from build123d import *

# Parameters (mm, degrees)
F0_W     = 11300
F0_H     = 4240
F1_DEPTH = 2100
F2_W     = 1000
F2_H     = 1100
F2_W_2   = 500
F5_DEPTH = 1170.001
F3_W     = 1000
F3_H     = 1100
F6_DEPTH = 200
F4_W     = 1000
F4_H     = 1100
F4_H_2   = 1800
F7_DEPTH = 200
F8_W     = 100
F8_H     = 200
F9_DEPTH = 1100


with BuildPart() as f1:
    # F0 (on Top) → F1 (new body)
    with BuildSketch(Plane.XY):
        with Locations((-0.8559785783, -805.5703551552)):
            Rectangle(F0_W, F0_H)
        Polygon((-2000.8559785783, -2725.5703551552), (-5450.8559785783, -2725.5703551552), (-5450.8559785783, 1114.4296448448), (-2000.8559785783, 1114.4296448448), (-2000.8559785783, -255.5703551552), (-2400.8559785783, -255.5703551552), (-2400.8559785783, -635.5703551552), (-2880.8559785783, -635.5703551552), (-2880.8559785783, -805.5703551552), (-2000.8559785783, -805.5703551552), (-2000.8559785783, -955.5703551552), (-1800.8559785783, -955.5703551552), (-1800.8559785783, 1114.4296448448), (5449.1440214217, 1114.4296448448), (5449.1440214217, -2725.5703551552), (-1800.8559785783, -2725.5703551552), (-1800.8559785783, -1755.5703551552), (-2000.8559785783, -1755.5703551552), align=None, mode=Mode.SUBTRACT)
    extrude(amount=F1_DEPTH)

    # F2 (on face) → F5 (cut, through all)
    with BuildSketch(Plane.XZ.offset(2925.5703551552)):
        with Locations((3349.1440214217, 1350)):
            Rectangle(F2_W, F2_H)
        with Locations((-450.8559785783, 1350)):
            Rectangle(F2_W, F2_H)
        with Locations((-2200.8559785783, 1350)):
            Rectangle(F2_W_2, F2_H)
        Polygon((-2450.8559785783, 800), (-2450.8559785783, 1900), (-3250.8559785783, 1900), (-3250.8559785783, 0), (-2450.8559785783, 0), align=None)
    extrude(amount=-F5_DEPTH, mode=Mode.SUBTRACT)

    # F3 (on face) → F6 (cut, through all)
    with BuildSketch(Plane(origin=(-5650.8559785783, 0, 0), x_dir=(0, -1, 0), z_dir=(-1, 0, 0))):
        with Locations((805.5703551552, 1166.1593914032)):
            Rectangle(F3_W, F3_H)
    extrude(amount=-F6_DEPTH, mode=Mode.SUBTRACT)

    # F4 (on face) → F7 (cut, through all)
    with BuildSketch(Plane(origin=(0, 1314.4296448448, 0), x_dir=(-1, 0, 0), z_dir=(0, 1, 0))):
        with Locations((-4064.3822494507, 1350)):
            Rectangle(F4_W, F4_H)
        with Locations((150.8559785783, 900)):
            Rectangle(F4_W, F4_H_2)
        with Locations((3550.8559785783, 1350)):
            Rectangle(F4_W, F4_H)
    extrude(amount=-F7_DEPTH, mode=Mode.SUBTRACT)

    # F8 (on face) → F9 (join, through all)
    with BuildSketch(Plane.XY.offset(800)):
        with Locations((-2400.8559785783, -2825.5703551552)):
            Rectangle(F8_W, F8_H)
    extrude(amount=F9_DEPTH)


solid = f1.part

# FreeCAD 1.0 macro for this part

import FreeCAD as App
import Part
import Sketcher

V = App.Vector

doc = App.newDocument("Part")
body = doc.addObject("PartDesign::Body", "Body")

# Sketch on XY plane
sketch1 = body.newObject("Sketcher::SketchObject", "Sketch")
sketch1.AttachmentSupport = (doc.getObject("XY_Plane"), [""])
sketch1.MapMode = "FlatFace"
sketch1.addGeometry([
    Part.LineSegment(V(-5650.855979, 1314.429645, 0), V(-5650.855979, -2925.570355, 0)),  # 0
    Part.LineSegment(V(-5650.855979, -2925.570355, 0), V(5649.144021, -2925.570355, 0)),  # 1
    Part.LineSegment(V(5649.144021, -2925.570355, 0), V(5649.144021, 1314.429645, 0)),  # 2
    Part.LineSegment(V(5649.144021, 1314.429645, 0), V(-5650.855979, 1314.429645, 0)),  # 3
    Part.LineSegment(V(-2000.855979, -1755.570355, 0), V(-2000.855979, -2725.570355, 0)),  # 4
    Part.LineSegment(V(-2000.855979, -2725.570355, 0), V(-5450.855979, -2725.570355, 0)),  # 5
    Part.LineSegment(V(-5450.855979, -2725.570355, 0), V(-5450.855979, 1114.429645, 0)),  # 6
    Part.LineSegment(V(-5450.855979, 1114.429645, 0), V(-2000.855979, 1114.429645, 0)),  # 7
    Part.LineSegment(V(-2000.855979, 1114.429645, 0), V(-2000.855979, -255.570355, 0)),  # 8
    Part.LineSegment(V(-2000.855979, -255.570355, 0), V(-2400.855979, -255.570355, 0)),  # 9
    Part.LineSegment(V(-2400.855979, -255.570355, 0), V(-2400.855979, -635.570355, 0)),  # 10
    Part.LineSegment(V(-2400.855979, -635.570355, 0), V(-2880.855979, -635.570355, 0)),  # 11
    Part.LineSegment(V(-2880.855979, -635.570355, 0), V(-2880.855979, -805.570355, 0)),  # 12
    Part.LineSegment(V(-2880.855979, -805.570355, 0), V(-2000.855979, -805.570355, 0)),  # 13
    Part.LineSegment(V(-2000.855979, -805.570355, 0), V(-2000.855979, -955.570355, 0)),  # 14
    Part.LineSegment(V(-2000.855979, -955.570355, 0), V(-1800.855979, -955.570355, 0)),  # 15
    Part.LineSegment(V(-1800.855979, -955.570355, 0), V(-1800.855979, 1114.429645, 0)),  # 16
    Part.LineSegment(V(-1800.855979, 1114.429645, 0), V(5449.144021, 1114.429645, 0)),  # 17
    Part.LineSegment(V(5449.144021, 1114.429645, 0), V(5449.144021, -2725.570355, 0)),  # 18
    Part.LineSegment(V(5449.144021, -2725.570355, 0), V(-1800.855979, -2725.570355, 0)),  # 19
    Part.LineSegment(V(-1800.855979, -2725.570355, 0), V(-1800.855979, -1755.570355, 0)),  # 20
    Part.LineSegment(V(-1800.855979, -1755.570355, 0), V(-2000.855979, -1755.570355, 0)),  # 21
], False)
sketch1.addConstraint([
    Sketcher.Constraint("Coincident", 0, 2, 1, 1),
    Sketcher.Constraint("Coincident", 1, 2, 2, 1),
    Sketcher.Constraint("Coincident", 2, 2, 3, 1),
    Sketcher.Constraint("Coincident", 3, 2, 0, 1),
    Sketcher.Constraint("Coincident", 4, 2, 5, 1),
    Sketcher.Constraint("Coincident", 5, 2, 6, 1),
    Sketcher.Constraint("Coincident", 6, 2, 7, 1),
    Sketcher.Constraint("Coincident", 7, 2, 8, 1),
    Sketcher.Constraint("Coincident", 8, 2, 9, 1),
    Sketcher.Constraint("Coincident", 9, 2, 10, 1),
    Sketcher.Constraint("Coincident", 10, 2, 11, 1),
    Sketcher.Constraint("Coincident", 11, 2, 12, 1),
    Sketcher.Constraint("Coincident", 12, 2, 13, 1),
    Sketcher.Constraint("Coincident", 13, 2, 14, 1),
    Sketcher.Constraint("Coincident", 14, 2, 15, 1),
    Sketcher.Constraint("Coincident", 15, 2, 16, 1),
    Sketcher.Constraint("Coincident", 16, 2, 17, 1),
    Sketcher.Constraint("Coincident", 17, 2, 18, 1),
    Sketcher.Constraint("Coincident", 18, 2, 19, 1),
    Sketcher.Constraint("Coincident", 19, 2, 20, 1),
    Sketcher.Constraint("Coincident", 20, 2, 21, 1),
    Sketcher.Constraint("Coincident", 21, 2, 4, 1),
    Sketcher.Constraint("Vertical", 0),
    Sketcher.Constraint("Horizontal", 1),
    Sketcher.Constraint("Vertical", 2),
    Sketcher.Constraint("Horizontal", 3),
    Sketcher.Constraint("Vertical", 4),
    Sketcher.Constraint("Horizontal", 5),
    Sketcher.Constraint("Vertical", 6),
    Sketcher.Constraint("Horizontal", 7),
    Sketcher.Constraint("Vertical", 8),
    Sketcher.Constraint("Horizontal", 9),
    Sketcher.Constraint("Vertical", 10),
    Sketcher.Constraint("Horizontal", 11),
    Sketcher.Constraint("Vertical", 12),
    Sketcher.Constraint("Horizontal", 13),
    Sketcher.Constraint("Vertical", 14),
    Sketcher.Constraint("Horizontal", 15),
    Sketcher.Constraint("Vertical", 16),
    Sketcher.Constraint("Horizontal", 17),
    Sketcher.Constraint("Vertical", 18),
    Sketcher.Constraint("Horizontal", 19),
    Sketcher.Constraint("Vertical", 20),
    Sketcher.Constraint("Horizontal", 21),
    Sketcher.Constraint("Horizontal", 7, 2, 16, 2),
    Sketcher.Constraint("Horizontal", 5, 2, 18, 2),
    Sketcher.Constraint("Vertical", 4, 2, 7, 2),
    Sketcher.Constraint("Vertical", 8, 2, 13, 2),
    Sketcher.Constraint("Vertical", 16, 2, 19, 2),
    Sketcher.Constraint("DistanceX", 1, 1, 1, 2, 11300.0),
    Sketcher.Constraint("DistanceX", 5, 2, 5, 1, 3450.0),
    Sketcher.Constraint("DistanceX", 9, 2, 9, 1, 400.0),
    Sketcher.Constraint("DistanceX", 11, 2, 11, 1, 480.0),
    Sketcher.Constraint("DistanceX", 15, 1, 15, 2, 200.0),
    Sketcher.Constraint("DistanceX", 17, 1, 17, 2, 7250.0),
    Sketcher.Constraint("DistanceY", 0, 2, 0, 1, 4240.0),
    Sketcher.Constraint("DistanceY", 4, 2, 4, 1, 970.0),
    Sketcher.Constraint("DistanceY", 6, 1, 6, 2, 3840.0),
    Sketcher.Constraint("DistanceY", 8, 2, 8, 1, 1370.0),
    Sketcher.Constraint("DistanceY", 10, 2, 10, 1, 380.0),
    Sketcher.Constraint("DistanceY", 12, 2, 12, 1, 170.0),
    Sketcher.Constraint("DistanceY", 14, 2, 14, 1, 150.0),
    Sketcher.Constraint("DistanceX", 0, 2, 4, 2, 3650.0),
    Sketcher.Constraint("DistanceY", 0, 2, 4, 2, 200.0),
    Sketcher.Constraint("DistanceX", 0, 2, -1, 1, 5650.855979),
    Sketcher.Constraint("DistanceY", 0, 2, -1, 1, 2925.570355),
])
pad1 = body.newObject("PartDesign::Pad", "Pad")
pad1.Profile = sketch1
pad1.Length = 2100

# Sketch on XZ plane
sketch2 = body.newObject("Sketcher::SketchObject", "Sketch001")
sketch2.AttachmentSupport = (doc.getObject("XZ_Plane"), [""])
sketch2.MapMode = "FlatFace"
sketch2.AttachmentOffset = App.Placement(V(0, 0, 2925.570355), App.Rotation())
sketch2.addGeometry([
    Part.LineSegment(V(2849.144021, 1900, 0), V(2849.144021, 800, 0)),  # 0
    Part.LineSegment(V(2849.144021, 800, 0), V(3849.144021, 800, 0)),  # 1
    Part.LineSegment(V(3849.144021, 800, 0), V(3849.144021, 1900, 0)),  # 2
    Part.LineSegment(V(3849.144021, 1900, 0), V(2849.144021, 1900, 0)),  # 3
    Part.LineSegment(V(-950.855979, 1900, 0), V(-950.855979, 800, 0)),  # 4
    Part.LineSegment(V(-950.855979, 800, 0), V(49.144021, 800, 0)),  # 5
    Part.LineSegment(V(49.144021, 800, 0), V(49.144021, 1900, 0)),  # 6
    Part.LineSegment(V(49.144021, 1900, 0), V(-950.855979, 1900, 0)),  # 7
    Part.LineSegment(V(-2450.855979, 800, 0), V(-1950.855979, 800, 0)),  # 8
    Part.LineSegment(V(-1950.855979, 800, 0), V(-1950.855979, 1900, 0)),  # 9
    Part.LineSegment(V(-1950.855979, 1900, 0), V(-3250.855979, 1900, 0)),  # 10
    Part.LineSegment(V(-3250.855979, 1900, 0), V(-3250.855979, 0, 0)),  # 11
    Part.LineSegment(V(-3250.855979, 0, 0), V(-2450.855979, 0, 0)),  # 12
    Part.LineSegment(V(-2450.855979, 0, 0), V(-2450.855979, 800, 0)),  # 13
], False)
sketch2.addConstraint([
    Sketcher.Constraint("Coincident", 0, 2, 1, 1),
    Sketcher.Constraint("Coincident", 1, 2, 2, 1),
    Sketcher.Constraint("Coincident", 2, 2, 3, 1),
    Sketcher.Constraint("Coincident", 3, 2, 0, 1),
    Sketcher.Constraint("Coincident", 4, 2, 5, 1),
    Sketcher.Constraint("Coincident", 5, 2, 6, 1),
    Sketcher.Constraint("Coincident", 6, 2, 7, 1),
    Sketcher.Constraint("Coincident", 7, 2, 4, 1),
    Sketcher.Constraint("Coincident", 8, 2, 9, 1),
    Sketcher.Constraint("Coincident", 9, 2, 10, 1),
    Sketcher.Constraint("Coincident", 10, 2, 11, 1),
    Sketcher.Constraint("Coincident", 11, 2, 12, 1),
    Sketcher.Constraint("Coincident", 12, 2, 13, 1),
    Sketcher.Constraint("Coincident", 13, 2, 8, 1),
    Sketcher.Constraint("Vertical", 0),
    Sketcher.Constraint("Horizontal", 1),
    Sketcher.Constraint("Vertical", 2),
    Sketcher.Constraint("Horizontal", 3),
    Sketcher.Constraint("Vertical", 4),
    Sketcher.Constraint("Horizontal", 5),
    Sketcher.Constraint("Vertical", 6),
    Sketcher.Constraint("Horizontal", 7),
    Sketcher.Constraint("Horizontal", 8),
    Sketcher.Constraint("Vertical", 9),
    Sketcher.Constraint("Horizontal", 10),
    Sketcher.Constraint("Vertical", 11),
    Sketcher.Constraint("Horizontal", 12),
    Sketcher.Constraint("Vertical", 13),
    Sketcher.Constraint("PointOnObject", 11, 2, -1),
    Sketcher.Constraint("Horizontal", 1, 2, 4, 2),
    Sketcher.Constraint("Horizontal", 3, 2, 6, 2),
    Sketcher.Constraint("Horizontal", 5, 2, 8, 2),
    Sketcher.Constraint("Horizontal", 7, 2, 9, 2),
    Sketcher.Constraint("Equal", 3, 5),
    Sketcher.Constraint("Equal", 12, 13),
    Sketcher.Constraint("DistanceX", 1, 1, 1, 2, 1000.0),
    Sketcher.Constraint("DistanceX", 8, 1, 8, 2, 500.0),
    Sketcher.Constraint("DistanceX", 10, 2, 10, 1, 1300.0),
    Sketcher.Constraint("DistanceY", 0, 2, 0, 1, 1100.0),
    Sketcher.Constraint("DistanceX", 4, 2, 0, 2, 3800.0),
    Sketcher.Constraint("DistanceX", 8, 2, 4, 2, 1000.0),
    Sketcher.Constraint("DistanceX", -1, 1, 0, 2, 2849.144021),
])
pocket1 = body.newObject("PartDesign::Pocket", "Pocket")
pocket1.Profile = sketch2
pocket1.Length = 1170.001

# Sketch on YZ plane
sketch3 = body.newObject("Sketcher::SketchObject", "Sketch002")
sketch3.AttachmentSupport = (doc.getObject("YZ_Plane"), [""])
sketch3.MapMode = "FlatFace"
sketch3.AttachmentOffset = App.Placement(V(0, 0, -5650.855979), App.Rotation())
sketch3.addGeometry([
    Part.LineSegment(V(-305.570355, 1716.159391, 0), V(-305.570355, 616.159391, 0)),
    Part.LineSegment(V(-305.570355, 616.159391, 0), V(-1305.570355, 616.159391, 0)),
    Part.LineSegment(V(-1305.570355, 616.159391, 0), V(-1305.570355, 1716.159391, 0)),
    Part.LineSegment(V(-1305.570355, 1716.159391, 0), V(-305.570355, 1716.159391, 0)),
], False)
sketch3.addConstraint([
    Sketcher.Constraint("Coincident", 0, 2, 1, 1),
    Sketcher.Constraint("Coincident", 1, 2, 2, 1),
    Sketcher.Constraint("Coincident", 2, 2, 3, 1),
    Sketcher.Constraint("Coincident", 3, 2, 0, 1),
    Sketcher.Constraint("Vertical", 0),
    Sketcher.Constraint("Horizontal", 1),
    Sketcher.Constraint("Vertical", 2),
    Sketcher.Constraint("Horizontal", 3),
    Sketcher.Constraint("DistanceX", 1, 2, 1, 1, 1000.0),
    Sketcher.Constraint("DistanceY", 0, 2, 0, 1, 1100.0),
    Sketcher.Constraint("DistanceY", -1, 1, 0, 2, 616.159391),
    Sketcher.Constraint("DistanceX", 0, 2, -1, 1, 305.570355),
])
pocket2 = body.newObject("PartDesign::Pocket", "Pocket001")
pocket2.Profile = sketch3
pocket2.Length = 200
pocket2.Reversed = True

# Sketch on XZ plane
sketch4 = body.newObject("Sketcher::SketchObject", "Sketch003")
sketch4.AttachmentSupport = (doc.getObject("XZ_Plane"), [""])
sketch4.MapMode = "FlatFace"
sketch4.AttachmentOffset = App.Placement(V(0, 0, -1314.429645), App.Rotation())
sketch4.addGeometry([
    Part.LineSegment(V(4564.382249, 1900, 0), V(4564.382249, 800, 0)),  # 0
    Part.LineSegment(V(4564.382249, 800, 0), V(3564.382249, 800, 0)),  # 1
    Part.LineSegment(V(3564.382249, 800, 0), V(3564.382249, 1900, 0)),  # 2
    Part.LineSegment(V(3564.382249, 1900, 0), V(4564.382249, 1900, 0)),  # 3
    Part.LineSegment(V(349.144021, 1800, 0), V(349.144021, 0, 0)),  # 4
    Part.LineSegment(V(349.144021, 0, 0), V(-650.855979, 0, 0)),  # 5
    Part.LineSegment(V(-650.855979, 0, 0), V(-650.855979, 1800, 0)),  # 6
    Part.LineSegment(V(-650.855979, 1800, 0), V(349.144021, 1800, 0)),  # 7
    Part.LineSegment(V(-3050.855979, 1900, 0), V(-3050.855979, 800, 0)),  # 8
    Part.LineSegment(V(-3050.855979, 800, 0), V(-4050.855979, 800, 0)),  # 9
    Part.LineSegment(V(-4050.855979, 800, 0), V(-4050.855979, 1900, 0)),  # 10
    Part.LineSegment(V(-4050.855979, 1900, 0), V(-3050.855979, 1900, 0)),  # 11
], False)
sketch4.addConstraint([
    Sketcher.Constraint("Coincident", 0, 2, 1, 1),
    Sketcher.Constraint("Coincident", 1, 2, 2, 1),
    Sketcher.Constraint("Coincident", 2, 2, 3, 1),
    Sketcher.Constraint("Coincident", 3, 2, 0, 1),
    Sketcher.Constraint("Coincident", 4, 2, 5, 1),
    Sketcher.Constraint("Coincident", 5, 2, 6, 1),
    Sketcher.Constraint("Coincident", 6, 2, 7, 1),
    Sketcher.Constraint("Coincident", 7, 2, 4, 1),
    Sketcher.Constraint("Coincident", 8, 2, 9, 1),
    Sketcher.Constraint("Coincident", 9, 2, 10, 1),
    Sketcher.Constraint("Coincident", 10, 2, 11, 1),
    Sketcher.Constraint("Coincident", 11, 2, 8, 1),
    Sketcher.Constraint("Vertical", 0),
    Sketcher.Constraint("Horizontal", 1),
    Sketcher.Constraint("Vertical", 2),
    Sketcher.Constraint("Horizontal", 3),
    Sketcher.Constraint("Vertical", 4),
    Sketcher.Constraint("Horizontal", 5),
    Sketcher.Constraint("Vertical", 6),
    Sketcher.Constraint("Horizontal", 7),
    Sketcher.Constraint("Vertical", 8),
    Sketcher.Constraint("Horizontal", 9),
    Sketcher.Constraint("Vertical", 10),
    Sketcher.Constraint("Horizontal", 11),
    Sketcher.Constraint("PointOnObject", 4, 2, -1),
    Sketcher.Constraint("Horizontal", 1, 2, 8, 2),
    Sketcher.Constraint("Horizontal", 3, 2, 10, 2),
    Sketcher.Constraint("Equal", 3, 5),
    Sketcher.Constraint("Equal", 7, 9),
    Sketcher.Constraint("DistanceX", 1, 2, 1, 1, 1000.0),
    Sketcher.Constraint("DistanceY", 0, 2, 0, 1, 1100.0),
    Sketcher.Constraint("DistanceY", 4, 2, 4, 1, 1800.0),
    Sketcher.Constraint("DistanceY", -1, 1, 0, 2, 800.0),
    Sketcher.Constraint("DistanceX", 8, 2, 5, 2, 2400.0),
    Sketcher.Constraint("DistanceX", -1, 1, 0, 2, 4564.382249),
    Sketcher.Constraint("DistanceX", -1, 1, 4, 2, 349.144021),
])
pocket3 = body.newObject("PartDesign::Pocket", "Pocket002")
pocket3.Profile = sketch4
pocket3.Length = 200
pocket3.Reversed = True

# Sketch on XY plane
sketch5 = body.newObject("Sketcher::SketchObject", "Sketch004")
sketch5.AttachmentSupport = (doc.getObject("XY_Plane"), [""])
sketch5.MapMode = "FlatFace"
sketch5.AttachmentOffset = App.Placement(V(0, 0, 800), App.Rotation())
sketch5.addGeometry([
    Part.LineSegment(V(-2450.855979, -2725.570355, 0), V(-2450.855979, -2925.570355, 0)),
    Part.LineSegment(V(-2450.855979, -2925.570355, 0), V(-2350.855979, -2925.570355, 0)),
    Part.LineSegment(V(-2350.855979, -2925.570355, 0), V(-2350.855979, -2725.570355, 0)),
    Part.LineSegment(V(-2350.855979, -2725.570355, 0), V(-2450.855979, -2725.570355, 0)),
], False)
sketch5.addConstraint([
    Sketcher.Constraint("Coincident", 0, 2, 1, 1),
    Sketcher.Constraint("Coincident", 1, 2, 2, 1),
    Sketcher.Constraint("Coincident", 2, 2, 3, 1),
    Sketcher.Constraint("Coincident", 3, 2, 0, 1),
    Sketcher.Constraint("Vertical", 0),
    Sketcher.Constraint("Horizontal", 1),
    Sketcher.Constraint("Vertical", 2),
    Sketcher.Constraint("Horizontal", 3),
    Sketcher.Constraint("DistanceX", 1, 1, 1, 2, 100.0),
    Sketcher.Constraint("DistanceY", 0, 2, 0, 1, 200.0),
    Sketcher.Constraint("DistanceX", 0, 2, -1, 1, 2450.855979),
    Sketcher.Constraint("DistanceY", 0, 2, -1, 1, 2925.570355),
])
pad2 = body.newObject("PartDesign::Pad", "Pad001")
pad2.Profile = sketch5
pad2.Type = "UpToLast"

doc.recompute()
